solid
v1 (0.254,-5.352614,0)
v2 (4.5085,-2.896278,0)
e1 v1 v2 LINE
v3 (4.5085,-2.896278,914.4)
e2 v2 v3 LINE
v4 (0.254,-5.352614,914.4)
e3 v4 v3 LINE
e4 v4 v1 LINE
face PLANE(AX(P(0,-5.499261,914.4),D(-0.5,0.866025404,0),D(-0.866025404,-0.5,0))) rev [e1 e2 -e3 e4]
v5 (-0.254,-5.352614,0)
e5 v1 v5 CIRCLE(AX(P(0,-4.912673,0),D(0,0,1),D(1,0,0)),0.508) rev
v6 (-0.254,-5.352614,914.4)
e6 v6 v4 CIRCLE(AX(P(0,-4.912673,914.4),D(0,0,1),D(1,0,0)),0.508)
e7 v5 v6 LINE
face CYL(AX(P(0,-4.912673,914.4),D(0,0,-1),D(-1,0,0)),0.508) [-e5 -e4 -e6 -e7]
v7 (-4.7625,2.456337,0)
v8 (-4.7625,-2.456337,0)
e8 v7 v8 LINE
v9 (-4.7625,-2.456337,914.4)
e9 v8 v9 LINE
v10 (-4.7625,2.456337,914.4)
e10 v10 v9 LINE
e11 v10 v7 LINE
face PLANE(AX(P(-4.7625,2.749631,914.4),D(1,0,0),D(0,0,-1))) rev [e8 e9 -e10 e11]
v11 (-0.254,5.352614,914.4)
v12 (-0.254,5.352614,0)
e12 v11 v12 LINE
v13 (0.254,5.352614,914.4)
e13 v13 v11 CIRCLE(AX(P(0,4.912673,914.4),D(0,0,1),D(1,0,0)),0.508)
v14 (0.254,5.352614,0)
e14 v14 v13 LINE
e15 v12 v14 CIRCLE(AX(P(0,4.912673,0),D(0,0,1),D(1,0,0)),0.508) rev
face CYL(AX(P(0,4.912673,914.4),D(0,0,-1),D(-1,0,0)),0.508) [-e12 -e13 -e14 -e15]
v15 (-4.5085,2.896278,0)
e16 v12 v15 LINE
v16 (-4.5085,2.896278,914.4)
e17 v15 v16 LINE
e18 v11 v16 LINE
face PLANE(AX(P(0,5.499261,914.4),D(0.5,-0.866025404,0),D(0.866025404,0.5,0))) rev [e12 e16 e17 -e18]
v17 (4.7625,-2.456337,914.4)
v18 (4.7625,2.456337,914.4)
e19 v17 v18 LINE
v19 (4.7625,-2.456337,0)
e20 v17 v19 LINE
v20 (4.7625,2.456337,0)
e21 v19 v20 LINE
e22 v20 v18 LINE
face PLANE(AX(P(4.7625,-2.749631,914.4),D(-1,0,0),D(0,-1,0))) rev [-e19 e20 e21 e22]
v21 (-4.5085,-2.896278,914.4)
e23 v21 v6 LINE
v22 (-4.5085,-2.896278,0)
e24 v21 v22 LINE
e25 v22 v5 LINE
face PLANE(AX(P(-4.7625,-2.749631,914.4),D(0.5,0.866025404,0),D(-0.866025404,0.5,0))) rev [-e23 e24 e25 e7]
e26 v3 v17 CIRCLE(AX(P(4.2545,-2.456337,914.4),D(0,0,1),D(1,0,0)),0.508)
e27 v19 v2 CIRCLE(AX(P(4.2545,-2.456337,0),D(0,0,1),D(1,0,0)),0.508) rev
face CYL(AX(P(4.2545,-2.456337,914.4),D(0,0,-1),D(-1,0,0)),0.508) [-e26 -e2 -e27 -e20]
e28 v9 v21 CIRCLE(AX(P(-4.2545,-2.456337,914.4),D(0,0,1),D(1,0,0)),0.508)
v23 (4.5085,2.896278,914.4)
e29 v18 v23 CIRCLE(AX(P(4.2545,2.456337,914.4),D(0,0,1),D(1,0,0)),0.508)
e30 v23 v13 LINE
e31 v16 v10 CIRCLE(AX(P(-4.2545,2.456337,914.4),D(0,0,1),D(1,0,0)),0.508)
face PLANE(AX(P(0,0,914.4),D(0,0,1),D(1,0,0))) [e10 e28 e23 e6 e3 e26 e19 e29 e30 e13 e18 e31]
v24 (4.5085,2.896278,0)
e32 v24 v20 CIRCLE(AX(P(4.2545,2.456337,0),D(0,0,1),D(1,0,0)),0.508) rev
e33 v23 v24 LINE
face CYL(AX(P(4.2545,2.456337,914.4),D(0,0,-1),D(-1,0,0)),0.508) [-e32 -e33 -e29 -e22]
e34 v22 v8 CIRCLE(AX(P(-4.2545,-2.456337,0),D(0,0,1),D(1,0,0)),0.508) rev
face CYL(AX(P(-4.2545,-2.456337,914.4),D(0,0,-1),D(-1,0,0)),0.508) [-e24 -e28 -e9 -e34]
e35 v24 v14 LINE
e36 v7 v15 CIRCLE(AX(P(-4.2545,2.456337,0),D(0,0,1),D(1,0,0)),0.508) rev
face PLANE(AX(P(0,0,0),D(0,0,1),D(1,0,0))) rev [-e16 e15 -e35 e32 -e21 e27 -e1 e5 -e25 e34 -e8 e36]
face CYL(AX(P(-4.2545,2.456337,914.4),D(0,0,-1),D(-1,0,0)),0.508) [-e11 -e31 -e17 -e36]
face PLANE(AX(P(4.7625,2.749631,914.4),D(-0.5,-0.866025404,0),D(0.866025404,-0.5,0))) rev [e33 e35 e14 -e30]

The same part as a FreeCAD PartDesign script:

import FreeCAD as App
import Part
import Sketcher
Q = App.Units.Quantity


def edges_at(feature, points):
    """Names of the edges that pass closest to the given points."""
    edges = feature.Shape.Edges
    near = lambda p: min(range(len(edges)), key=lambda i: edges[i].distToShape(Part.Vertex(*p))[0])
    return sorted({f"Edge{near(p) + 1}" for p in points})

doc = App.newDocument("Part")
body = doc.addObject("PartDesign::Body", "Body")

# Sketch on XY plane
sketch1 = body.newObject("Sketcher::SketchObject", "Sketch")
sketch1.AttachmentSupport = (doc.getObject("XY_Plane"), [""])
sketch1.MapMode = "FlatFace"
sketch1.addGeometry([
    Part.LineSegment(App.Vector(0, 5.499261, 0), App.Vector(-4.7625, 2.749631, 0)),  # 0
    Part.LineSegment(App.Vector(-4.7625, 2.749631, 0), App.Vector(-4.7625, -2.749631, 0)),  # 1
    Part.LineSegment(App.Vector(-4.7625, -2.749631, 0), App.Vector(0, -5.499261, 0)),  # 2
    Part.LineSegment(App.Vector(0, -5.499261, 0), App.Vector(4.7625, -2.749631, 0)),  # 3
    Part.LineSegment(App.Vector(4.7625, -2.749631, 0), App.Vector(4.7625, 2.749631, 0)),  # 4
    Part.LineSegment(App.Vector(4.7625, 2.749631, 0), App.Vector(0, 5.499261, 0)),  # 5
], False)
sketch1.addConstraint([
    Sketcher.Constraint("Coincident", 0, 2, 1, 1),
    Sketcher.Constraint("Coincident", 1, 2, 2, 1),
    Sketcher.Constraint("Coincident", 2, 2, 3, 1),
    Sketcher.Constraint("Coincident", 3, 2, 4, 1),
    Sketcher.Constraint("Coincident", 4, 2, 5, 1),
    Sketcher.Constraint("Coincident", 5, 2, 0, 1),
    Sketcher.Constraint("Vertical", 1),
    Sketcher.Constraint("Vertical", 4),
    Sketcher.Constraint("Symmetric", 0, 2, 3, 2, -1, 1),
    Sketcher.Constraint("Symmetric", 2, 2, 5, 2, -1, 1),
    Sketcher.Constraint("PointOnObject", 2, 2, -2),
    Sketcher.Constraint("Parallel", 2, 5),
    Sketcher.Constraint("Horizontal", 1, 2, 3, 2),
    Sketcher.Constraint("Angle", 0, Q("-150 deg")),
    Sketcher.Constraint("DistanceX", 0, 2, -1, 1, Q("0.1875 in")),
    Sketcher.Constraint("DistanceY", 1, 2, 1, 1, 5.499261),
])
pad1 = body.newObject("PartDesign::Pad", "Pad")
pad1.Profile = sketch1
pad1.Length = Q("36 in")
doc.recompute()

fillet = body.newObject("PartDesign::Fillet", "Fillet")
fillet.Base = (pad1, edges_at(pad1, [
    (4.763, 2.75, 457.2),
    (4.763, -2.75, 457.2),
    (0, -5.499, 457.2),
    (-4.763, -2.75, 457.2),
    (-4.763, 2.75, 457.2),
    (0, 5.499, 457.2),
]))
fillet.Radius = Q("0.02 in")

doc.recompute()
